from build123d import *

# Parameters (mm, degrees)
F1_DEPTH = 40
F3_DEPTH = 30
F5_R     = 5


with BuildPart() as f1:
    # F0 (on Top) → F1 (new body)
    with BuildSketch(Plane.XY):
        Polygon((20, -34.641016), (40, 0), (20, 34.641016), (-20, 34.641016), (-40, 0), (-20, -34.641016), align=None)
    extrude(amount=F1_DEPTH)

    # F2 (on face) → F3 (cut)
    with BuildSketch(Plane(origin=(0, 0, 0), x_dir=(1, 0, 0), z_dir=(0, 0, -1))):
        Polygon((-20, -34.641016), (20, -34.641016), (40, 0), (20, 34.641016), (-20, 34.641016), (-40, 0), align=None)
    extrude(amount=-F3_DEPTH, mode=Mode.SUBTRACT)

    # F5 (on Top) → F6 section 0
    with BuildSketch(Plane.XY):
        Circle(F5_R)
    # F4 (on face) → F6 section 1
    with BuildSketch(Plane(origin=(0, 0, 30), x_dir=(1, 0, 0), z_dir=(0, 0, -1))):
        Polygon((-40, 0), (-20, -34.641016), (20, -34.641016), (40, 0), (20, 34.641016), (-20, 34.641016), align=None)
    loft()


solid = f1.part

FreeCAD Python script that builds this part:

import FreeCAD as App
import Part
import Sketcher

V = App.Vector
Q = App.Units.Quantity

doc = App.newDocument("Part")
body = doc.addObject("PartDesign::Body", "Body")

# Sketch on XY plane
sketch1 = doc.addObject("Sketcher::SketchObject", "Sketch")
body.addObject(sketch1)
sketch1.AttachmentSupport = (doc.XY_Plane, [""])
sketch1.MapMode = "FlatFace"
sketch1.addGeometry(Part.LineSegment(V(20, -34.641016, 0), V(40, 0, 0)), False)
sketch1.addGeometry(Part.LineSegment(V(40, 0, 0), V(20, 34.641016, 0)), False)
sketch1.addGeometry(Part.LineSegment(V(20, 34.641016, 0), V(-20, 34.641016, 0)), False)
sketch1.addGeometry(Part.LineSegment(V(-20, 34.641016, 0), V(-40, 0, 0)), False)
sketch1.addGeometry(Part.LineSegment(V(-40, 0, 0), V(-20, -34.641016, 0)), False)
sketch1.addGeometry(Part.LineSegment(V(-20, -34.641016, 0), V(20, -34.641016, 0)), False)
sketch1.addConstraint(Sketcher.Constraint("Coincident", 0, 2, 1, 1))
sketch1.addConstraint(Sketcher.Constraint("Coincident", 1, 2, 2, 1))
sketch1.addConstraint(Sketcher.Constraint("Coincident", 2, 2, 3, 1))
sketch1.addConstraint(Sketcher.Constraint("Coincident", 3, 2, 4, 1))
sketch1.addConstraint(Sketcher.Constraint("Coincident", 4, 2, 5, 1))
sketch1.addConstraint(Sketcher.Constraint("Coincident", 5, 2, 0, 1))
sketch1.addConstraint(Sketcher.Constraint("Horizontal", 2))
sketch1.addConstraint(Sketcher.Constraint("Horizontal", 5))
sketch1.addConstraint(Sketcher.Constraint("Symmetric", 0, 2, 3, 2, -1, 1))
sketch1.addConstraint(Sketcher.Constraint("Symmetric", 1, 2, 4, 2, -1, 1))
sketch1.addConstraint(Sketcher.Constraint("PointOnObject", 0, 2, -1))
sketch1.addConstraint(Sketcher.Constraint("Parallel", 0, 3))
sketch1.addConstraint(Sketcher.Constraint("Vertical", 2, 2, 4, 2))
sketch1.addConstraint(Sketcher.Constraint("DistanceX", 2, 2, 2, 1, Q("40 mm")))
sketch1.addConstraint(Sketcher.Constraint("Angle", 0, Q("60 deg")))
sketch1.addConstraint(Sketcher.Constraint("Distance", 0, Q("40 mm")))
pad1 = doc.addObject("PartDesign::Pad", "Pad")
body.addObject(pad1)
pad1.Profile = sketch1
pad1.Length = 40

# Sketch on XY plane
sketch2 = doc.addObject("Sketcher::SketchObject", "Sketch001")
body.addObject(sketch2)
sketch2.AttachmentSupport = (doc.XY_Plane, [""])
sketch2.MapMode = "FlatFace"
sketch2.addGeometry(Part.LineSegment(V(-20, 34.641016, 0), V(20, 34.641016, 0)), False)
sketch2.addGeometry(Part.LineSegment(V(20, 34.641016, 0), V(40, 0, 0)), False)
sketch2.addGeometry(Part.LineSegment(V(40, 0, 0), V(20, -34.641016, 0)), False)
sketch2.addGeometry(Part.LineSegment(V(20, -34.641016, 0), V(-20, -34.641016, 0)), False)
sketch2.addGeometry(Part.LineSegment(V(-20, -34.641016, 0), V(-40, 0, 0)), False)
sketch2.addGeometry(Part.LineSegment(V(-40, 0, 0), V(-20, 34.641016, 0)), False)
sketch2.addConstraint(Sketcher.Constraint("Coincident", 0, 2, 1, 1))
sketch2.addConstraint(Sketcher.Constraint("Coincident", 1, 2, 2, 1))
sketch2.addConstraint(Sketcher.Constraint("Coincident", 2, 2, 3, 1))
sketch2.addConstraint(Sketcher.Constraint("Coincident", 3, 2, 4, 1))
sketch2.addConstraint(Sketcher.Constraint("Coincident", 4, 2, 5, 1))
sketch2.addConstraint(Sketcher.Constraint("Coincident", 5, 2, 0, 1))
sketch2.addConstraint(Sketcher.Constraint("Horizontal", 0))
sketch2.addConstraint(Sketcher.Constraint("Horizontal", 3))
sketch2.addConstraint(Sketcher.Constraint("Symmetric", 0, 2, 3, 2, -1, 1))
sketch2.addConstraint(Sketcher.Constraint("Symmetric", 1, 2, 4, 2, -1, 1))
sketch2.addConstraint(Sketcher.Constraint("PointOnObject", 1, 2, -1))
sketch2.addConstraint(Sketcher.Constraint("Parallel", 2, 5))
sketch2.addConstraint(Sketcher.Constraint("Vertical", 0, 2, 2, 2))
sketch2.addConstraint(Sketcher.Constraint("DistanceX", 0, 1, 0, 2, Q("40 mm")))
sketch2.addConstraint(Sketcher.Constraint("Angle", 1, Q("-60 deg")))
sketch2.addConstraint(Sketcher.Constraint("Distance", 1, Q("40 mm")))
pocket1 = doc.addObject("PartDesign::Pocket", "Pocket")
body.addObject(pocket1)
pocket1.Profile = sketch2
pocket1.Length = 30
pocket1.Reversed = True

# Sketch on XY plane
sketch3 = doc.addObject("Sketcher::SketchObject", "Sketch002")
body.addObject(sketch3)
sketch3.AttachmentSupport = (doc.XY_Plane, [""])
sketch3.MapMode = "FlatFace"
sketch3.addGeometry(Part.Circle(V(0, 0, 0), V(0, 0, 1), 5), False)
sketch3.addConstraint(Sketcher.Constraint("Coincident", 0, 3, -1, 1))
sketch3.addConstraint(Sketcher.Constraint("Diameter", 0, Q("10 mm")))

# Sketch on XY plane
sketch4 = doc.addObject("Sketcher::SketchObject", "Sketch003")
body.addObject(sketch4)
sketch4.AttachmentSupport = (doc.XY_Plane, [""])
sketch4.MapMode = "FlatFace"
sketch4.AttachmentOffset = App.Placement(V(0, 0, 30), App.Rotation())
sketch4.addGeometry(Part.LineSegment(V(-40, 0, 0), V(-20, 34.641016, 0)), False)
sketch4.addGeometry(Part.LineSegment(V(-20, 34.641016, 0), V(20, 34.641016, 0)), False)
sketch4.addGeometry(Part.LineSegment(V(20, 34.641016, 0), V(40, 0, 0)), False)
sketch4.addGeometry(Part.LineSegment(V(40, 0, 0), V(20, -34.641016, 0)), False)
sketch4.addGeometry(Part.LineSegment(V(20, -34.641016, 0), V(-20, -34.641016, 0)), False)
sketch4.addGeometry(Part.LineSegment(V(-20, -34.641016, 0), V(-40, 0, 0)), False)
sketch4.addConstraint(Sketcher.Constraint("Coincident", 0, 2, 1, 1))
sketch4.addConstraint(Sketcher.Constraint("Coincident", 1, 2, 2, 1))
sketch4.addConstraint(Sketcher.Constraint("Coincident", 2, 2, 3, 1))
sketch4.addConstraint(Sketcher.Constraint("Coincident", 3, 2, 4, 1))
sketch4.addConstraint(Sketcher.Constraint("Coincident", 4, 2, 5, 1))
sketch4.addConstraint(Sketcher.Constraint("Coincident", 5, 2, 0, 1))
sketch4.addConstraint(Sketcher.Constraint("Horizontal", 1))
sketch4.addConstraint(Sketcher.Constraint("Horizontal", 4))
sketch4.addConstraint(Sketcher.Constraint("Symmetric", 0, 2, 3, 2, -1, 1))
sketch4.addConstraint(Sketcher.Constraint("Symmetric", 2, 2, 5, 2, -1, 1))
sketch4.addConstraint(Sketcher.Constraint("PointOnObject", 2, 2, -1))
sketch4.addConstraint(Sketcher.Constraint("Parallel", 2, 5))
sketch4.addConstraint(Sketcher.Constraint("Vertical", 1, 2, 3, 2))
sketch4.addConstraint(Sketcher.Constraint("DistanceX", 1, 1, 1, 2, Q("40 mm")))
sketch4.addConstraint(Sketcher.Constraint("Angle", 0, Q("60 deg")))
sketch4.addConstraint(Sketcher.Constraint("Distance", 0, Q("40 mm")))

additiveloft = doc.addObject("PartDesign::AdditiveLoft", "AdditiveLoft")
body.addObject(additiveloft)
additiveloft.Profile = sketch3
additiveloft.Sections = [sketch4]

doc.recompute()
